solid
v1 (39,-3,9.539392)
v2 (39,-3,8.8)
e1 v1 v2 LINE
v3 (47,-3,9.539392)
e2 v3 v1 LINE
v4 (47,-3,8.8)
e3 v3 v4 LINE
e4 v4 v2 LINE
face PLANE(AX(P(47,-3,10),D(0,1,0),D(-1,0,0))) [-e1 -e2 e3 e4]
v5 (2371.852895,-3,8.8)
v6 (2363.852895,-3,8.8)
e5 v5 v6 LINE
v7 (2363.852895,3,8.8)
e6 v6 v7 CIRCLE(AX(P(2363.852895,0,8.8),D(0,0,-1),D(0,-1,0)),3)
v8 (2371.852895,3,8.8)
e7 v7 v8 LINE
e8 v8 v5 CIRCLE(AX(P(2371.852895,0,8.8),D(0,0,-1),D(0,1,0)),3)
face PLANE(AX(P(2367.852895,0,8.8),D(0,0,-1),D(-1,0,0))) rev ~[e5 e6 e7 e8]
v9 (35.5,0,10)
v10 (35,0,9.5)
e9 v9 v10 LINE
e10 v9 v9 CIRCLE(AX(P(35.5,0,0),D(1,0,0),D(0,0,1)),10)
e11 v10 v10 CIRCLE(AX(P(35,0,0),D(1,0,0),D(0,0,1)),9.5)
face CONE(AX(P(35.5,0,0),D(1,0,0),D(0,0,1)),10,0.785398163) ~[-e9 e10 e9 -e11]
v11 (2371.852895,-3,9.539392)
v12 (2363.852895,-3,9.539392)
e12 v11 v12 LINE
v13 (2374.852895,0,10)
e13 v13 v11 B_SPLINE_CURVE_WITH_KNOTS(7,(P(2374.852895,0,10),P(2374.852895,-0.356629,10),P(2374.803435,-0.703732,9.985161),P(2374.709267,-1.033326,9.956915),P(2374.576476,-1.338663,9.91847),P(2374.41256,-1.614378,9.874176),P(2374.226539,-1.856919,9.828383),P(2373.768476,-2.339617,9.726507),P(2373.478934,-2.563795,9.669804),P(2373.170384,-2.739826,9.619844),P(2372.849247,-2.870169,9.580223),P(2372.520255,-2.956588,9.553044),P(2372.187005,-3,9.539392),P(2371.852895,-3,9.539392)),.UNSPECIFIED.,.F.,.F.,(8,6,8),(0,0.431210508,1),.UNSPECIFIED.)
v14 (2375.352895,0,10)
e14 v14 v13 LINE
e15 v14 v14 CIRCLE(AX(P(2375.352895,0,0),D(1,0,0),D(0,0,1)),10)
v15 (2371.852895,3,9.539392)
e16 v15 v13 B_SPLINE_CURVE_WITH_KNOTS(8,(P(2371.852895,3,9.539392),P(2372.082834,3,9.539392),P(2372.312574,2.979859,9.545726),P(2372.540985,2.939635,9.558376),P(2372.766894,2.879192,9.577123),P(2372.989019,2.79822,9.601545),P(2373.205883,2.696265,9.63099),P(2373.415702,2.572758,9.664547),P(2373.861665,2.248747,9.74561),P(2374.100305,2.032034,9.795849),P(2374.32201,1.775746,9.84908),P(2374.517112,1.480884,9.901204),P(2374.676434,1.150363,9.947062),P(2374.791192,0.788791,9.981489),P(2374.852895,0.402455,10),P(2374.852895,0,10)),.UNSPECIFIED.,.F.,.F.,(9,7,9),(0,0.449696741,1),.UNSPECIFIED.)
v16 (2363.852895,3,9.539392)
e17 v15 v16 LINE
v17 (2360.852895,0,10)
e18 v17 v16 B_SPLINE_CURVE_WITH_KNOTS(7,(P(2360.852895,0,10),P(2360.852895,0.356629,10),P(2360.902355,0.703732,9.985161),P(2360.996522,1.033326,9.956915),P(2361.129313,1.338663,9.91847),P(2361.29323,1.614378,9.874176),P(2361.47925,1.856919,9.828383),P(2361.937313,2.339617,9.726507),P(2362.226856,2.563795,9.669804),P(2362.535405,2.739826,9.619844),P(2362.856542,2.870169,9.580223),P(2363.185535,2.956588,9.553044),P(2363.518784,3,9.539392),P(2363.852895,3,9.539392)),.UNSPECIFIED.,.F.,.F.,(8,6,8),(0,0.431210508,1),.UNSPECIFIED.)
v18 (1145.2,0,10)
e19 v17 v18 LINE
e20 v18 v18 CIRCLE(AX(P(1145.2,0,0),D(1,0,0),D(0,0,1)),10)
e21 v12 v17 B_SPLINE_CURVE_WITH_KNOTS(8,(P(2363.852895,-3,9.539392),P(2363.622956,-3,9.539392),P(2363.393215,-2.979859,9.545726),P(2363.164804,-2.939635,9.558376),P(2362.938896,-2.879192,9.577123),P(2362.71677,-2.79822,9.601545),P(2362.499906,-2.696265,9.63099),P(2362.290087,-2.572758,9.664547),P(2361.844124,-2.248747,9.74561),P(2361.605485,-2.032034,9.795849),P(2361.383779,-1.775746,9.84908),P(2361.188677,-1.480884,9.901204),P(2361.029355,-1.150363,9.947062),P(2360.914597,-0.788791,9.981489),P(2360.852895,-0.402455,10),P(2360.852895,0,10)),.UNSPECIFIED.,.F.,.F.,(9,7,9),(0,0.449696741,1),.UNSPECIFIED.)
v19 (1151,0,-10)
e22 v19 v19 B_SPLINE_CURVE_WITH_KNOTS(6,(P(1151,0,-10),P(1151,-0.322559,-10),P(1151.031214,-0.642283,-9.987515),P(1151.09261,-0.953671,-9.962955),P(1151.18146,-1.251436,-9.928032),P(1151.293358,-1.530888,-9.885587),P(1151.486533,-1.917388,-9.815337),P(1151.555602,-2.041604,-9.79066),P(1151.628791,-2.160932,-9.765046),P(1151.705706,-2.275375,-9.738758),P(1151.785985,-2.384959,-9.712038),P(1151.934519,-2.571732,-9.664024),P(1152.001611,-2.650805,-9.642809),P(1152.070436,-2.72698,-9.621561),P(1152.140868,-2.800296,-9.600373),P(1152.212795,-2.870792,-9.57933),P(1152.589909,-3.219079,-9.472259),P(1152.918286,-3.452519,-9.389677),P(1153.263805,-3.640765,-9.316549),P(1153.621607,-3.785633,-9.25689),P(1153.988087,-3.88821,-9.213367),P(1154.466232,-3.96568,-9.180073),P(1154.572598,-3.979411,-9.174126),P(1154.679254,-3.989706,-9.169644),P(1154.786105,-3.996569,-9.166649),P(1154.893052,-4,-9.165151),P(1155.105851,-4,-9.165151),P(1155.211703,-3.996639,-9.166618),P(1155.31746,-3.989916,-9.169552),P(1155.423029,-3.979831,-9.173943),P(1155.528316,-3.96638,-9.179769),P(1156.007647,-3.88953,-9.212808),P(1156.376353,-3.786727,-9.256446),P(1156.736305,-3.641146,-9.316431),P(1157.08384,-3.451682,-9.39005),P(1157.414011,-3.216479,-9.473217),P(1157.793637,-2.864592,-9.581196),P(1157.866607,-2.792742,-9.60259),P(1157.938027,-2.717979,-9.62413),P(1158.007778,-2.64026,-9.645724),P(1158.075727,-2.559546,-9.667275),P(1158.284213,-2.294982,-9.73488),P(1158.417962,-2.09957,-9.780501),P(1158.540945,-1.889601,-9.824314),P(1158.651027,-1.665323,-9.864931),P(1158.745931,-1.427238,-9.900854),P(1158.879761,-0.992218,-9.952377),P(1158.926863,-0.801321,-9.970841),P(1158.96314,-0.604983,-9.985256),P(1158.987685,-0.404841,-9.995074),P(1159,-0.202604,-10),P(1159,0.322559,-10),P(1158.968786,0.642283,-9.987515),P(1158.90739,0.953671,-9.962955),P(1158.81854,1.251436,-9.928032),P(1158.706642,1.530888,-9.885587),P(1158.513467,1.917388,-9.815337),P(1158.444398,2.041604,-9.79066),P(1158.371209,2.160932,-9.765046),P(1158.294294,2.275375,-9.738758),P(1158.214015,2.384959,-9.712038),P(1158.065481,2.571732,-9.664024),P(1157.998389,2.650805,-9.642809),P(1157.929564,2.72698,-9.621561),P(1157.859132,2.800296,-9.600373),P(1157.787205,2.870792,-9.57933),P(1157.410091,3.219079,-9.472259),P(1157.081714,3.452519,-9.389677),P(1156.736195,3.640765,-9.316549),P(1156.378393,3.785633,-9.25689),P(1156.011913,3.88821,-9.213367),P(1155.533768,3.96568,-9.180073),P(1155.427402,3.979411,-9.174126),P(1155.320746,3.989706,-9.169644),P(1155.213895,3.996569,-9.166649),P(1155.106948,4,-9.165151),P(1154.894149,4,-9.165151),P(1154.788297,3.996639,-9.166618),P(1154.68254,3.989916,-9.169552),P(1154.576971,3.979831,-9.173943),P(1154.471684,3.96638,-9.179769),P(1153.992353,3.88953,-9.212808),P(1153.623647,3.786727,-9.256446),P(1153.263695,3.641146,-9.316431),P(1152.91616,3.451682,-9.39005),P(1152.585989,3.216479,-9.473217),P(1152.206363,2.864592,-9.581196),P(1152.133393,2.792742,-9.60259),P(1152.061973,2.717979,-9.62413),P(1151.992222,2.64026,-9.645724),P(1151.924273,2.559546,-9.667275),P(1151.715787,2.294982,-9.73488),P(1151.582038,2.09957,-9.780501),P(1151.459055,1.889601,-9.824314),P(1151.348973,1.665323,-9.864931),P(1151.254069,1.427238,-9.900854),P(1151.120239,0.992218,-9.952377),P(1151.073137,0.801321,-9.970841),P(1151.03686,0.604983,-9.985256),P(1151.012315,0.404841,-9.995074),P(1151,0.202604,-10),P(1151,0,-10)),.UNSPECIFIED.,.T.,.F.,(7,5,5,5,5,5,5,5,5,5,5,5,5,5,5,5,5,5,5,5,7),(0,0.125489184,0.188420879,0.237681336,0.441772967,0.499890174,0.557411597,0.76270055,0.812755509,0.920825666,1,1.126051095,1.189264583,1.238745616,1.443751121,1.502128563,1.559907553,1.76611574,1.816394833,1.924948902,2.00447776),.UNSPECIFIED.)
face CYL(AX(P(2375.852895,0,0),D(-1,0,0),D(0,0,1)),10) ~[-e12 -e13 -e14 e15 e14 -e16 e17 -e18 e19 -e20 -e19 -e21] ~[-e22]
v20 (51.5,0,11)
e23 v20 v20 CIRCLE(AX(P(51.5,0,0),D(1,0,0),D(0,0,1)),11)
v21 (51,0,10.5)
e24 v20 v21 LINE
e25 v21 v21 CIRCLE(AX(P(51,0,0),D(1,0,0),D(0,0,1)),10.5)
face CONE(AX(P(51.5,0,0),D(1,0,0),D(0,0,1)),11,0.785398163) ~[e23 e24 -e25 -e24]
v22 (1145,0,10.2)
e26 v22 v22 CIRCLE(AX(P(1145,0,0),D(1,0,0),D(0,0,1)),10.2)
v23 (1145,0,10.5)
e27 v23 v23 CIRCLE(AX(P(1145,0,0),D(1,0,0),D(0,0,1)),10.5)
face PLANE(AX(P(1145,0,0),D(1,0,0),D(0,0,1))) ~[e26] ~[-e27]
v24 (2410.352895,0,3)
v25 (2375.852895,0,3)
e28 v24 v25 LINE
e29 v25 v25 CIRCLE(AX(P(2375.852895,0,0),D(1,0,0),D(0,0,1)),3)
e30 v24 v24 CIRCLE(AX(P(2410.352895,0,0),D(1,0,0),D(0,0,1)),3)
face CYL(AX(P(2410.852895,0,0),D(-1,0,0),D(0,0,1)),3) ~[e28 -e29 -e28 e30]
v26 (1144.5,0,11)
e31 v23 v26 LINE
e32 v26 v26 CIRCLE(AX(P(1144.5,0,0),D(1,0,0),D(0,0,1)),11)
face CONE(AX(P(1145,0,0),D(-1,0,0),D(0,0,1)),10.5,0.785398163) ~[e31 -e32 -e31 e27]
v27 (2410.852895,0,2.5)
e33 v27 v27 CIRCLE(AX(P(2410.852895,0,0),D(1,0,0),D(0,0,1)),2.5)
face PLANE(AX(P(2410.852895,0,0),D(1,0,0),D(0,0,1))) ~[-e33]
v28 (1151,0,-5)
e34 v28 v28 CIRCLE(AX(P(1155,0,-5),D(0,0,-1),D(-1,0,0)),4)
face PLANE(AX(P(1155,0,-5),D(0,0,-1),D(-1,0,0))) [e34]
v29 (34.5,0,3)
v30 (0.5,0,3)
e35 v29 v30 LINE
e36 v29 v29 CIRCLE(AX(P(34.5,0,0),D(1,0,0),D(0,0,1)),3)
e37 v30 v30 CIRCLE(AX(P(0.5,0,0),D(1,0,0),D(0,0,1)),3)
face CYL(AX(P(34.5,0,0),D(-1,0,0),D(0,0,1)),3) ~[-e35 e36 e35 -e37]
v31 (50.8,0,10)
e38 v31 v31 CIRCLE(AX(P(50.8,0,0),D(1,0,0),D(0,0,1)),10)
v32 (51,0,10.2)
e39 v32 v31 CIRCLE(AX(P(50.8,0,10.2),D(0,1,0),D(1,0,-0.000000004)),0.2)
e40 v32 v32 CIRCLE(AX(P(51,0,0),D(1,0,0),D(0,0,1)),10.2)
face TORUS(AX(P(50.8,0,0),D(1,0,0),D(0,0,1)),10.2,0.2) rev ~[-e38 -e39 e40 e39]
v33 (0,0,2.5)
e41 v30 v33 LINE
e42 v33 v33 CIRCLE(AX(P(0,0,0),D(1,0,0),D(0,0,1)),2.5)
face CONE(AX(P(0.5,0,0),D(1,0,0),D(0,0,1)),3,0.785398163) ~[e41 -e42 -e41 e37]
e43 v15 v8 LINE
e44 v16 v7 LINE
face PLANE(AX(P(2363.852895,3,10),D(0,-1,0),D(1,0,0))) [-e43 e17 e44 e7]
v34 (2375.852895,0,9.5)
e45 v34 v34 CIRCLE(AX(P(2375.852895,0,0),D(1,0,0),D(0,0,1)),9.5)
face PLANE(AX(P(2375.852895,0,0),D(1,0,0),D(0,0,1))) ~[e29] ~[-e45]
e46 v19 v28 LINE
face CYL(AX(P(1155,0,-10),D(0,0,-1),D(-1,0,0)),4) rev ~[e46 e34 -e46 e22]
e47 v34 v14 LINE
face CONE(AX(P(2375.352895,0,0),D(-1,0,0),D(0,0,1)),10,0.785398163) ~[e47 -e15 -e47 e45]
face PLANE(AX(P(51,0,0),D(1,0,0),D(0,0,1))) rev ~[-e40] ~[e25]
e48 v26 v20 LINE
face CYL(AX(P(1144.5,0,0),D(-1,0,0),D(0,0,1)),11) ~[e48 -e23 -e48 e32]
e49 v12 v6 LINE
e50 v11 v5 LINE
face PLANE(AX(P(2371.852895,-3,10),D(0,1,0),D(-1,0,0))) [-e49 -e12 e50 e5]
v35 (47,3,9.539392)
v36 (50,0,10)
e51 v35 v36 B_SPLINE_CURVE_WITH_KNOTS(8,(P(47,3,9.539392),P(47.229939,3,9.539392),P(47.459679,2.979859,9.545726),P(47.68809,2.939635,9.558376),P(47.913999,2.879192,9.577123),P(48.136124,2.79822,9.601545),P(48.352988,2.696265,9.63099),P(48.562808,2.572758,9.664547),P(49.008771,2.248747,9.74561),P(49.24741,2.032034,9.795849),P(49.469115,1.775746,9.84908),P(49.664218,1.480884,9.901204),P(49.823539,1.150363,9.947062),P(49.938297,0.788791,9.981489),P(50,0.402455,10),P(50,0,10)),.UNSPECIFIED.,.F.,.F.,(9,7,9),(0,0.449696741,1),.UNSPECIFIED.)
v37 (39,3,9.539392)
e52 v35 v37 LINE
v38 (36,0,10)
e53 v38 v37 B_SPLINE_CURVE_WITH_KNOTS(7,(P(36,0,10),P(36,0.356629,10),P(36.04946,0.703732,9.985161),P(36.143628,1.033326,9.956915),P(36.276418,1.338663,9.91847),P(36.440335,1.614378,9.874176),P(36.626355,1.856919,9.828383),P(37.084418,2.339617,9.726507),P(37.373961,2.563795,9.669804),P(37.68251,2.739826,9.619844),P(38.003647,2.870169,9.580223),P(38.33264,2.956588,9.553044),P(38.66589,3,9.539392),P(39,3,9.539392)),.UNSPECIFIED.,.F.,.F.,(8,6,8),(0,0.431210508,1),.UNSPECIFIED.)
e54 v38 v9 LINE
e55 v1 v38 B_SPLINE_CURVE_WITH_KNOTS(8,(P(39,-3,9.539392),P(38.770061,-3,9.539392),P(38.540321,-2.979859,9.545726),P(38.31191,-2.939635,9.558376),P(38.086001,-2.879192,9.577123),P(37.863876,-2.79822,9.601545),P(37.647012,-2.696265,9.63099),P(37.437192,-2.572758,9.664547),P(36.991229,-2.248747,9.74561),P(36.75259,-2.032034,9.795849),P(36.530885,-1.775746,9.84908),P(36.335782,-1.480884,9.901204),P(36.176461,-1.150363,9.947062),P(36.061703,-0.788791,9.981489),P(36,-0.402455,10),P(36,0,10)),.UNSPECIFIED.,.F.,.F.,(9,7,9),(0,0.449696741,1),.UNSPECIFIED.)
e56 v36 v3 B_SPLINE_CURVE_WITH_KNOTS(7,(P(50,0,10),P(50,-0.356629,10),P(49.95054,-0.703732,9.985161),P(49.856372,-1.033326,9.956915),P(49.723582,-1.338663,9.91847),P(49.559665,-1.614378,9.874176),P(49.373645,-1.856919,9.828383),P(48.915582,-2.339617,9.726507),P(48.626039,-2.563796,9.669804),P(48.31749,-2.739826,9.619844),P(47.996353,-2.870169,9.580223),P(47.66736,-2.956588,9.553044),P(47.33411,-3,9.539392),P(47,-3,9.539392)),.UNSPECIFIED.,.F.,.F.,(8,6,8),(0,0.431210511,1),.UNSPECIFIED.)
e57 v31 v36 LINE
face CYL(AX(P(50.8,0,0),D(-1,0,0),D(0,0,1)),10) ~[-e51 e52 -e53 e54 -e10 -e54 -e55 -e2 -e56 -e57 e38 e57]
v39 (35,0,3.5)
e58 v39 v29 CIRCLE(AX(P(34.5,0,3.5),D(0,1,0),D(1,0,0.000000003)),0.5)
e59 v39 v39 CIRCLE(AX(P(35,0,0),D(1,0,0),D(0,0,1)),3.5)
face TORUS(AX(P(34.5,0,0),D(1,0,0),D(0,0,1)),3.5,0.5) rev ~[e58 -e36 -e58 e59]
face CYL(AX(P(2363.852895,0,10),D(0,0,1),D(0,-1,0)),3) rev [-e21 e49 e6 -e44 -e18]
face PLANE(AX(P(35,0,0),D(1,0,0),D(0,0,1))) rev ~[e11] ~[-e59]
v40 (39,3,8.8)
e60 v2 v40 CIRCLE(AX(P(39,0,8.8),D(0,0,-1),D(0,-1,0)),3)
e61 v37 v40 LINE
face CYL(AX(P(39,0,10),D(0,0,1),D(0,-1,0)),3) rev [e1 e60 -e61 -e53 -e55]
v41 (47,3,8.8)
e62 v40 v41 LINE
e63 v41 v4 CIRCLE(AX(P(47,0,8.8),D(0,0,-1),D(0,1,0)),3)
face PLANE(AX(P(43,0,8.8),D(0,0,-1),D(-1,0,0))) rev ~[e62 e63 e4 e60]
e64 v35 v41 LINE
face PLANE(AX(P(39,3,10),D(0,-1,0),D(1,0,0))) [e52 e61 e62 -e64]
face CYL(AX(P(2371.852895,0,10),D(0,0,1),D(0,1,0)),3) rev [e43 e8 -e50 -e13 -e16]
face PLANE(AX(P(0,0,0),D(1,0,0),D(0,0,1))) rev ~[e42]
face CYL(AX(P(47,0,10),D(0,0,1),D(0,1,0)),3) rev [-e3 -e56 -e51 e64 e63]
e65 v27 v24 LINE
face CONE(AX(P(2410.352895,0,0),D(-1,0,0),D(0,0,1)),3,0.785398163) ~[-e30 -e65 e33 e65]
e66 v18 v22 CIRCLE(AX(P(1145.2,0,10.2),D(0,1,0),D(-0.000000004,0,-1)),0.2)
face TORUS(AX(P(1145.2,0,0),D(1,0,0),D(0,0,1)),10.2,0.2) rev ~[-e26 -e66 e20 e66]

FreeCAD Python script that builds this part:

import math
import FreeCAD as App
import Part
import Sketcher

V = App.Vector
Q = App.Units.Quantity


def edges_at(feature, points):
    """Names of the edges that pass closest to the given points."""
    edges = feature.Shape.Edges
    near = lambda p: min(range(len(edges)), key=lambda i: edges[i].distToShape(Part.Vertex(*p))[0])
    return sorted({f"Edge{near(p) + 1}" for p in points})

doc = App.newDocument("Part")
body = doc.addObject("PartDesign::Body", "Body")

# Sketch on XY plane
sketch1 = doc.addObject("Sketcher::SketchObject", "Sketch")
body.addObject(sketch1)
sketch1.AttachmentSupport = (doc.XY_Plane, [""])
sketch1.MapMode = "FlatFace"
sketch1.addGeometry(Part.LineSegment(V(0, 2.5, 0), V(0, 0, 0)), False)
sketch1.addGeometry(Part.LineSegment(V(0, 0, 0), V(2410.852895, 0, 0)), False)
sketch1.addGeometry(Part.LineSegment(V(2410.852895, 0, 0), V(2410.852895, 3, 0)), False)
sketch1.addGeometry(Part.LineSegment(V(2410.852895, 3, 0), V(2375.852895, 3, 0)), False)
sketch1.addGeometry(Part.LineSegment(V(2375.852895, 3, 0), V(2375.852895, 10, 0)), False)
sketch1.addGeometry(Part.LineSegment(V(2375.852895, 10, 0), V(1145.2, 10, 0)), False)
sketch1.addGeometry(Part.ArcOfCircle(Part.Circle(V(1145.2, 10.2, 0), V(0, 0, 1), 0.2), math.radians(-180), math.radians(-90)), False)
sketch1.addGeometry(Part.LineSegment(V(1145, 10.2, 0), V(1145, 10.5, 0)), False)
sketch1.addGeometry(Part.LineSegment(V(1145, 10.5, 0), V(1144.5, 11, 0)), False)
sketch1.addGeometry(Part.LineSegment(V(1144.5, 11, 0), V(51.5, 11, 0)), False)
sketch1.addGeometry(Part.LineSegment(V(51.5, 11, 0), V(51, 10.5, 0)), False)
sketch1.addGeometry(Part.LineSegment(V(51, 10.5, 0), V(51, 10.2, 0)), False)
sketch1.addGeometry(Part.ArcOfCircle(Part.Circle(V(50.8, 10.2, 0), V(0, 0, 1), 0.2), math.radians(-90), math.radians(0)), False)
sketch1.addGeometry(Part.LineSegment(V(50.8, 10, 0), V(35.5, 10, 0)), False)
sketch1.addGeometry(Part.LineSegment(V(35.5, 10, 0), V(35, 9.5, 0)), False)
sketch1.addGeometry(Part.LineSegment(V(35, 9.5, 0), V(35, 3.5, 0)), False)
sketch1.addGeometry(Part.ArcOfCircle(Part.Circle(V(34.5, 3.5, 0), V(0, 0, 1), 0.5), math.radians(-90), math.radians(0)), False)
sketch1.addGeometry(Part.LineSegment(V(34.5, 3, 0), V(0.5, 3, 0)), False)
sketch1.addGeometry(Part.LineSegment(V(0.5, 3, 0), V(0, 2.5, 0)), False)
sketch1.addConstraint(Sketcher.Constraint("Coincident", 0, 2, 1, 1))
sketch1.addConstraint(Sketcher.Constraint("Coincident", 1, 2, 2, 1))
sketch1.addConstraint(Sketcher.Constraint("Coincident", 2, 2, 3, 1))
sketch1.addConstraint(Sketcher.Constraint("Coincident", 3, 2, 4, 1))
sketch1.addConstraint(Sketcher.Constraint("Coincident", 4, 2, 5, 1))
sketch1.addConstraint(Sketcher.Constraint("Tangent", 5, 2, 6, 2))
sketch1.addConstraint(Sketcher.Constraint("Tangent", 6, 1, 7, 1))
sketch1.addConstraint(Sketcher.Constraint("Coincident", 7, 2, 8, 1))
sketch1.addConstraint(Sketcher.Constraint("Coincident", 8, 2, 9, 1))
sketch1.addConstraint(Sketcher.Constraint("Coincident", 9, 2, 10, 1))
sketch1.addConstraint(Sketcher.Constraint("Coincident", 10, 2, 11, 1))
sketch1.addConstraint(Sketcher.Constraint("Tangent", 11, 2, 12, 2))
sketch1.addConstraint(Sketcher.Constraint("Tangent", 12, 1, 13, 1))
sketch1.addConstraint(Sketcher.Constraint("Coincident", 13, 2, 14, 1))
sketch1.addConstraint(Sketcher.Constraint("Coincident", 14, 2, 15, 1))
sketch1.addConstraint(Sketcher.Constraint("Tangent", 15, 2, 16, 2))
sketch1.addConstraint(Sketcher.Constraint("Tangent", 16, 1, 17, 1))
sketch1.addConstraint(Sketcher.Constraint("Coincident", 17, 2, 18, 1))
sketch1.addConstraint(Sketcher.Constraint("Coincident", 18, 2, 0, 1))
sketch1.addConstraint(Sketcher.Constraint("Vertical", 0))
sketch1.addConstraint(Sketcher.Constraint("Horizontal", 1))
sketch1.addConstraint(Sketcher.Constraint("Vertical", 2))
sketch1.addConstraint(Sketcher.Constraint("Horizontal", 3))
sketch1.addConstraint(Sketcher.Constraint("Vertical", 4))
sketch1.addConstraint(Sketcher.Constraint("Horizontal", 5))
sketch1.addConstraint(Sketcher.Constraint("Vertical", 7))
sketch1.addConstraint(Sketcher.Constraint("Horizontal", 9))
sketch1.addConstraint(Sketcher.Constraint("Vertical", 11))
sketch1.addConstraint(Sketcher.Constraint("Horizontal", 13))
sketch1.addConstraint(Sketcher.Constraint("Vertical", 15))
sketch1.addConstraint(Sketcher.Constraint("Horizontal", 17))
sketch1.addConstraint(Sketcher.Constraint("Coincident", 0, 2, -1, 1))
sketch1.addConstraint(Sketcher.Constraint("Equal", 6, 12))
sketch1.addConstraint(Sketcher.Constraint("Perpendicular", 8, 10))
sketch1.addConstraint(Sketcher.Constraint("Parallel", 10, 14))
sketch1.addConstraint(Sketcher.Constraint("Parallel", 14, 18))
sketch1.addConstraint(Sketcher.Constraint("Horizontal", 6, 3, 12, 3))
sketch1.addConstraint(Sketcher.Constraint("Horizontal", 7, 2, 10, 2))
sketch1.addConstraint(Sketcher.Constraint("Horizontal", 3, 2, 16, 1))
sketch1.addConstraint(Sketcher.Constraint("Equal", 8, 10))
sketch1.addConstraint(Sketcher.Constraint("Equal", 10, 14))
sketch1.addConstraint(Sketcher.Constraint("Equal", 14, 18))
sketch1.addConstraint(Sketcher.Constraint("Radius", 6, Q("0.2 mm")))
sketch1.addConstraint(Sketcher.Constraint("Radius", 16, Q("0.5 mm")))
sketch1.addConstraint(Sketcher.Constraint("DistanceX", 3, 2, 3, 1, Q("35 mm")))
sketch1.addConstraint(Sketcher.Constraint("DistanceX", 9, 2, 9, 1, Q("1093 mm")))
sketch1.addConstraint(Sketcher.Constraint("DistanceX", 17, 2, 17, 1, Q("34 mm")))
sketch1.addConstraint(Sketcher.Constraint("DistanceY", 2, 1, 2, 2, Q("3 mm")))
sketch1.addConstraint(Sketcher.Constraint("DistanceY", 4, 1, 4, 2, Q("7 mm")))
sketch1.addConstraint(Sketcher.Constraint("DistanceY", 15, 2, 15, 1, Q("6 mm")))
sketch1.addConstraint(Sketcher.Constraint("DistanceX", 13, 2, 13, 1, Q("15.3 mm")))
sketch1.addConstraint(Sketcher.Constraint("DistanceY", 7, 1, 7, 2, Q("0.3 mm")))
sketch1.addConstraint(Sketcher.Constraint("DistanceX", 1, 1, 1, 2, Q("2410.852895 mm")))
revolution = doc.addObject("PartDesign::Revolution", "Revolution")
body.addObject(revolution)
revolution.Profile = sketch1
revolution.ReferenceAxis = (sketch1, ["H_Axis"])
revolution.Angle = 360
doc.recompute()

chamfer = doc.addObject("PartDesign::Chamfer", "Chamfer")
body.addObject(chamfer)
chamfer.Base = (revolution, edges_at(revolution, [(2375.853, 0, -10), (2410.853, 0, -3)]))
chamfer.Size = 0.5

# Sketch on XY plane
sketch2 = doc.addObject("Sketcher::SketchObject", "Sketch001")
body.addObject(sketch2)
sketch2.AttachmentSupport = (doc.XY_Plane, [""])
sketch2.MapMode = "FlatFace"
sketch2.AttachmentOffset = App.Placement(V(0, 0, 10), App.Rotation())
sketch2.addGeometry(Part.LineSegment(V(47, 3, 0), V(39, 3, 0)), False)
sketch2.addGeometry(Part.ArcOfCircle(Part.Circle(V(39, 0, 0), V(0, 0, 1), 3), math.radians(90), math.radians(270)), False)
sketch2.addGeometry(Part.LineSegment(V(39, -3, 0), V(47, -3, 0)), False)
sketch2.addGeometry(Part.ArcOfCircle(Part.Circle(V(47, 0, 0), V(0, 0, 1), 3), math.radians(-90), math.radians(90)), False)
sketch2.addConstraint(Sketcher.Constraint("Tangent", 0, 2, 1, 1))
sketch2.addConstraint(Sketcher.Constraint("Tangent", 1, 2, 2, 1))
sketch2.addConstraint(Sketcher.Constraint("Tangent", 2, 2, 3, 1))
sketch2.addConstraint(Sketcher.Constraint("Tangent", 3, 2, 0, 1))
sketch2.addConstraint(Sketcher.Constraint("Horizontal", 0))
sketch2.addConstraint(Sketcher.Constraint("Horizontal", 2))
sketch2.addConstraint(Sketcher.Constraint("PointOnObject", 1, 3, -1))
sketch2.addConstraint(Sketcher.Constraint("Radius", 1, Q("3 mm")))
sketch2.addConstraint(Sketcher.Constraint("DistanceX", 0, 2, 0, 1, Q("8 mm")))
sketch2.addConstraint(Sketcher.Constraint("DistanceX", -1, 1, 1, 3, Q("39 mm")))
pocket1 = doc.addObject("PartDesign::Pocket", "Pocket")
body.addObject(pocket1)
pocket1.Profile = sketch2
pocket1.Length = 1.2

# Sketch on XY plane
sketch3 = doc.addObject("Sketcher::SketchObject", "Sketch002")
body.addObject(sketch3)
sketch3.AttachmentSupport = (doc.XY_Plane, [""])
sketch3.MapMode = "FlatFace"
sketch3.AttachmentOffset = App.Placement(V(0, 0, -10), App.Rotation())
sketch3.addGeometry(Part.Circle(V(1155, 0, 0), V(0, 0, 1), 4), False)
sketch3.addConstraint(Sketcher.Constraint("PointOnObject", 0, 3, -1))
sketch3.addConstraint(Sketcher.Constraint("Diameter", 0, Q("8 mm")))
sketch3.addConstraint(Sketcher.Constraint("DistanceX", -1, 1, 0, 3, Q("1155 mm")))
pocket2 = doc.addObject("PartDesign::Pocket", "Pocket001")
body.addObject(pocket2)
pocket2.Profile = sketch3
pocket2.Length = 5
pocket2.Reversed = True

# Sketch on XY plane
sketch4 = doc.addObject("Sketcher::SketchObject", "Sketch003")
body.addObject(sketch4)
sketch4.AttachmentSupport = (doc.XY_Plane, [""])
sketch4.MapMode = "FlatFace"
sketch4.AttachmentOffset = App.Placement(V(0, 0, 10), App.Rotation())
sketch4.addGeometry(Part.LineSegment(V(2371.9, 3, 0), V(2363.9, 3, 0)), False)
sketch4.addGeometry(Part.ArcOfCircle(Part.Circle(V(2363.9, 0, 0), V(0, 0, 1), 3), math.radians(90), math.radians(270)), False)
sketch4.addGeometry(Part.LineSegment(V(2363.9, -3, 0), V(2371.9, -3, 0)), False)
sketch4.addGeometry(Part.ArcOfCircle(Part.Circle(V(2371.9, 0, 0), V(0, 0, 1), 3), math.radians(-90), math.radians(90)), False)
sketch4.addConstraint(Sketcher.Constraint("Tangent", 0, 2, 1, 1))
sketch4.addConstraint(Sketcher.Constraint("Tangent", 1, 2, 2, 1))
sketch4.addConstraint(Sketcher.Constraint("Tangent", 2, 2, 3, 1))
sketch4.addConstraint(Sketcher.Constraint("Tangent", 3, 2, 0, 1))
sketch4.addConstraint(Sketcher.Constraint("Horizontal", 0))
sketch4.addConstraint(Sketcher.Constraint("Horizontal", 2))
sketch4.addConstraint(Sketcher.Constraint("PointOnObject", 1, 3, -1))
sketch4.addConstraint(Sketcher.Constraint("Radius", 1, Q("3 mm")))
sketch4.addConstraint(Sketcher.Constraint("DistanceX", 0, 2, 0, 1, Q("8 mm")))
sketch4.addConstraint(Sketcher.Constraint("DistanceX", -1, 1, 1, 3, Q("2363.852895 mm")))
pocket3 = doc.addObject("PartDesign::Pocket", "Pocket002")
body.addObject(pocket3)
pocket3.Profile = sketch4
pocket3.Length = 1.2

doc.recompute()
